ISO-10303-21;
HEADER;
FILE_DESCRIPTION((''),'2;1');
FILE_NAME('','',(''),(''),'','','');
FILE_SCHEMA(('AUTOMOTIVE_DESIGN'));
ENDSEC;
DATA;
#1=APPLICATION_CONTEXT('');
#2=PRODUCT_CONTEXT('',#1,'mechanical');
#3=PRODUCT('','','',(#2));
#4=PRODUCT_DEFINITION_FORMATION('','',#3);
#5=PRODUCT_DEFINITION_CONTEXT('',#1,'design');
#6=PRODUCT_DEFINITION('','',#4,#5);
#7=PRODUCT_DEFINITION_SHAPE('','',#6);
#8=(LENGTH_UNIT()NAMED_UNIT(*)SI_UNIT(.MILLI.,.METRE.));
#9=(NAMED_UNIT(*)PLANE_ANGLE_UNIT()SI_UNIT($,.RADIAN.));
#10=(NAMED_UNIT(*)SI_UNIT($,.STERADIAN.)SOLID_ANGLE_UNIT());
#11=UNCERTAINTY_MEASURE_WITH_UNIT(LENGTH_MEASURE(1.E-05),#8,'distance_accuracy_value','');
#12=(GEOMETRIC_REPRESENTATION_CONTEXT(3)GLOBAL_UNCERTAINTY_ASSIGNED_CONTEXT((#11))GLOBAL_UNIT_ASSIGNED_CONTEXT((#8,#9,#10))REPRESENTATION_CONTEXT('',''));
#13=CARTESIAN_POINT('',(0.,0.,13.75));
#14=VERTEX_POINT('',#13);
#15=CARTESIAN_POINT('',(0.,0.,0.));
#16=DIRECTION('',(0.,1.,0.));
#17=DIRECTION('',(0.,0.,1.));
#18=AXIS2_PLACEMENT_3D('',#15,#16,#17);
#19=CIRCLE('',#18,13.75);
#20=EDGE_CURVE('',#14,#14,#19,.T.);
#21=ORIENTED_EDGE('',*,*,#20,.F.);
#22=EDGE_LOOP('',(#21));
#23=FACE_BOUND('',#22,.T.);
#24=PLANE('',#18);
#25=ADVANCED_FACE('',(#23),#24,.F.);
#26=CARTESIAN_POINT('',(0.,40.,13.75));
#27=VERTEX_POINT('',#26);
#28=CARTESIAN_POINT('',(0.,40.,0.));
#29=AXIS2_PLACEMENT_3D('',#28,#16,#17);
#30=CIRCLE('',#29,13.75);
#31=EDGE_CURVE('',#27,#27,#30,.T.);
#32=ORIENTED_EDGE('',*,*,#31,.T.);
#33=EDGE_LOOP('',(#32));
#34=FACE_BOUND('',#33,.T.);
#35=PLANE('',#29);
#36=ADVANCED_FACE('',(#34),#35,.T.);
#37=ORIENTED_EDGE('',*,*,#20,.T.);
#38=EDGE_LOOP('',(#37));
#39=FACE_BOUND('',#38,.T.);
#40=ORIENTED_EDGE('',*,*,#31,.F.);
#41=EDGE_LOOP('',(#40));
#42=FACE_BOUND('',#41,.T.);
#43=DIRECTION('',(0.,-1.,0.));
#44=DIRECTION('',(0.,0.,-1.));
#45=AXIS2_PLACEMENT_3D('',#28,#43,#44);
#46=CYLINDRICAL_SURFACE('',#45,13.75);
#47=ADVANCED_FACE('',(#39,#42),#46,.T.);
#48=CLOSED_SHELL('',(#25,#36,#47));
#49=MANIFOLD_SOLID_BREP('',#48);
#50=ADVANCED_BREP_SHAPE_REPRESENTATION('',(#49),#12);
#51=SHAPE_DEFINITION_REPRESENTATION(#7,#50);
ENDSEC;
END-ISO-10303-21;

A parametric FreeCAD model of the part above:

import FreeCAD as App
import Part
import Sketcher
Q = App.Units.Quantity

doc = App.newDocument("Part")
params = doc.addObject("Spreadsheet::Sheet", "Params")
for row, (alias, value) in enumerate([
    ("sketch1_diameter", "27.5 mm"),
    ("pad1_length", "40 mm"),
], start=1):
    params.set(f"A{row}", alias)
    params.set(f"B{row}", "=" + value)
    params.setAlias(f"B{row}", alias)

body = doc.addObject("PartDesign::Body", "Body")

# Sketch on XZ plane
sketch1 = body.newObject("Sketcher::SketchObject", "Sketch")
sketch1.AttachmentSupport = (doc.getObject("XZ_Plane"), [""])
sketch1.MapMode = "FlatFace"
sketch1.addGeometry(Part.Circle(App.Vector(0, 0, 0), App.Vector(0, 0, 1), 14), False)
sketch1.addConstraint([
    Sketcher.Constraint("Coincident", 0, 3, -1, 1),
    Sketcher.Constraint("Diameter", 0, Q("27.5 mm")),
])
sketch1.setExpression("Constraints[1]", "Params.sketch1_diameter")
pad1 = body.newObject("PartDesign::Pad", "Pad")
pad1.Profile = sketch1
pad1.setExpression("Length", "Params.pad1_length")
pad1.Reversed = True

doc.recompute()
